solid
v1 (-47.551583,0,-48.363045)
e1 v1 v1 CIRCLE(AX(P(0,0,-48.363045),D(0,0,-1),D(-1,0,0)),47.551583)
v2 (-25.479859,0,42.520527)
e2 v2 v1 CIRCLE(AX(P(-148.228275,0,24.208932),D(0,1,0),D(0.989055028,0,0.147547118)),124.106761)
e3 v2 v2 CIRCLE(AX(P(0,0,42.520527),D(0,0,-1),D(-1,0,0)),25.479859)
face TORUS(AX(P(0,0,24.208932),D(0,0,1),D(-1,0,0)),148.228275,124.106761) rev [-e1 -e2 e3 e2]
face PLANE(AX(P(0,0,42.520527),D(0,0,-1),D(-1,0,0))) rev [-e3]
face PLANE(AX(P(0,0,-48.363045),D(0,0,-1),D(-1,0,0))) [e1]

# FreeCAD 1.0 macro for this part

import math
import FreeCAD as App
import Part
import Sketcher

doc = App.newDocument("Part")
body = doc.addObject("PartDesign::Body", "Body")

# Sketch on XZ plane
sketch1 = body.newObject("Sketcher::SketchObject", "Sketch")
sketch1.AttachmentSupport = (doc.getObject("XZ_Plane"), [""])
sketch1.MapMode = "FlatFace"
sketch1.addGeometry(Part.ArcOfCircle(Part.Circle(App.Vector(-148, 24, 0), App.Vector(0, 0, 1), 124), math.radians(-36), math.radians(8)), False)
sketch1.addGeometry(Part.LineSegment(App.Vector(-48, -48, 0), App.Vector(0, -48, 0)), False)
sketch1.addGeometry(Part.LineSegment(App.Vector(0, -48, 0), App.Vector(0, 43, 0)), False)
sketch1.addGeometry(Part.LineSegment(App.Vector(0, 43, 0), App.Vector(-25, 43, 0)), False)
sketch1.addConstraint(Sketcher.Constraint("Coincident", 0, 1, 1, 1))
sketch1.addConstraint(Sketcher.Constraint("Coincident", 1, 2, 2, 1))
sketch1.addConstraint(Sketcher.Constraint("Coincident", 2, 2, 3, 1))
sketch1.addConstraint(Sketcher.Constraint("Coincident", 3, 2, 0, 2))
sketch1.addConstraint(Sketcher.Constraint("Horizontal", 1))
sketch1.addConstraint(Sketcher.Constraint("Vertical", 2))
sketch1.addConstraint(Sketcher.Constraint("Horizontal", 3))
sketch1.addConstraint(Sketcher.Constraint("PointOnObject", 1, 2, -2))
sketch1.addConstraint(Sketcher.Constraint("Radius", 0, 124.106761))
sketch1.addConstraint(Sketcher.Constraint("DistanceX", 3, 2, 3, 1, 25.479859))
sketch1.addConstraint(Sketcher.Constraint("DistanceY", 2, 1, 2, 2, 90.883572))
sketch1.addConstraint(Sketcher.Constraint("DistanceX", 1, 1, 1, 2, 47.551583))
sketch1.addConstraint(Sketcher.Constraint("DistanceY", -1, 1, 0, 3, 24.208932))
revolution = body.newObject("PartDesign::Revolution", "Revolution")
revolution.Profile = sketch1
revolution.ReferenceAxis = (sketch1, ["V_Axis"])
revolution.Angle = 360

doc.recompute()
